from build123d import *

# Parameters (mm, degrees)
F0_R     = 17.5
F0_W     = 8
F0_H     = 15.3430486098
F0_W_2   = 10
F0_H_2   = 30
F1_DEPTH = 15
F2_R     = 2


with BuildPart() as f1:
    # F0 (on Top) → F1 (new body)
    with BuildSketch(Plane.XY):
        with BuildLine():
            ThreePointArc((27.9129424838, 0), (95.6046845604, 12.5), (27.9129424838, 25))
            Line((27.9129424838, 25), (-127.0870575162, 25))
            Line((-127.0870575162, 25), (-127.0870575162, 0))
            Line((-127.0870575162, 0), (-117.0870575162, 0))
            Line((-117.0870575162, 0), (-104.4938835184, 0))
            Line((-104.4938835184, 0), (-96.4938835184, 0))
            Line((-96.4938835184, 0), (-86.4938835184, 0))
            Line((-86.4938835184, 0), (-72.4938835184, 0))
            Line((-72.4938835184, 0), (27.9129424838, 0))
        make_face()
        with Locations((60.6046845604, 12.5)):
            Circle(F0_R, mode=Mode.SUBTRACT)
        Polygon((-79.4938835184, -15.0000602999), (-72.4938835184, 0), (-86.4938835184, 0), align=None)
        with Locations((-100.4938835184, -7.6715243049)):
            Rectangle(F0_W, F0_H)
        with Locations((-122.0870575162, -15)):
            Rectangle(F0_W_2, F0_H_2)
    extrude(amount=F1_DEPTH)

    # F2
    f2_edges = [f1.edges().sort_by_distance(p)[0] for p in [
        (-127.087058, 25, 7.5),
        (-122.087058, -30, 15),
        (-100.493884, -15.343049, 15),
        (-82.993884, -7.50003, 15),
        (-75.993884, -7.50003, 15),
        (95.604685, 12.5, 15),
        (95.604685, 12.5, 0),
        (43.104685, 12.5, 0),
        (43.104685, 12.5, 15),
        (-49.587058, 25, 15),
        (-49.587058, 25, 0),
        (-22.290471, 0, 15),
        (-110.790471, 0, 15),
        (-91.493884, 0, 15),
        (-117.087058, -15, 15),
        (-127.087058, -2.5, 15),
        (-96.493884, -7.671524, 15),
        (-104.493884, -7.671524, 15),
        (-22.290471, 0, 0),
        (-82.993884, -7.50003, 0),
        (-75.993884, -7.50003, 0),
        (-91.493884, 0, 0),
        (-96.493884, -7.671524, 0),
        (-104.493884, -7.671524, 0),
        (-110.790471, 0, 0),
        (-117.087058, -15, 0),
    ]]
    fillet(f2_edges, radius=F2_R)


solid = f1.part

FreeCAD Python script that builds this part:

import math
import FreeCAD as App
import Part
import Sketcher

V = App.Vector


def edges_at(feature, points):
    """Names of the edges that pass closest to the given points."""
    edges = feature.Shape.Edges
    near = lambda p: min(range(len(edges)), key=lambda i: edges[i].distToShape(Part.Vertex(*p))[0])
    return sorted({f"Edge{near(p) + 1}" for p in points})

doc = App.newDocument("Part")
body = doc.addObject("PartDesign::Body", "Body")

# Sketch on XY plane
sketch1 = doc.addObject("Sketcher::SketchObject", "Sketch")
body.addObject(sketch1)
sketch1.AttachmentSupport = (doc.XY_Plane, [""])
sketch1.MapMode = "FlatFace"
sketch1.addGeometry(Part.ArcOfCircle(Part.Circle(V(61, 12, 0), V(0, 0, 1), 35), math.radians(-159), math.radians(159)), False)
sketch1.addGeometry(Part.LineSegment(V(28, 25, 0), V(-127, 25, 0)), False)
sketch1.addGeometry(Part.LineSegment(V(-127, 25, 0), V(-127, -30, 0)), False)
sketch1.addGeometry(Part.LineSegment(V(-127, -30, 0), V(-117, -30, 0)), False)
sketch1.addGeometry(Part.LineSegment(V(-117, -30, 0), V(-117, 0, 0)), False)
sketch1.addGeometry(Part.LineSegment(V(-117, 0, 0), V(-104, 0, 0)), False)
sketch1.addGeometry(Part.LineSegment(V(-104, 0, 0), V(-104, -15, 0)), False)
sketch1.addGeometry(Part.LineSegment(V(-104, -15, 0), V(-96, -15, 0)), False)
sketch1.addGeometry(Part.LineSegment(V(-96, -15, 0), V(-96, 0, 0)), False)
sketch1.addGeometry(Part.LineSegment(V(-96, 0, 0), V(-86, 0, 0)), False)
sketch1.addGeometry(Part.LineSegment(V(-86, 0, 0), V(-79, -15, 0)), False)
sketch1.addGeometry(Part.LineSegment(V(-79, -15, 0), V(-72, 0, 0)), False)
sketch1.addGeometry(Part.LineSegment(V(-72, 0, 0), V(28, 0, 0)), False)
sketch1.addGeometry(Part.Circle(V(61, 12, 0), V(0, 0, 1), 18), False)
sketch1.addConstraint(Sketcher.Constraint("Coincident", 0, 2, 1, 1))
sketch1.addConstraint(Sketcher.Constraint("Coincident", 1, 2, 2, 1))
sketch1.addConstraint(Sketcher.Constraint("Coincident", 2, 2, 3, 1))
sketch1.addConstraint(Sketcher.Constraint("Coincident", 3, 2, 4, 1))
sketch1.addConstraint(Sketcher.Constraint("Coincident", 4, 2, 5, 1))
sketch1.addConstraint(Sketcher.Constraint("Coincident", 5, 2, 6, 1))
sketch1.addConstraint(Sketcher.Constraint("Coincident", 6, 2, 7, 1))
sketch1.addConstraint(Sketcher.Constraint("Coincident", 7, 2, 8, 1))
sketch1.addConstraint(Sketcher.Constraint("Coincident", 8, 2, 9, 1))
sketch1.addConstraint(Sketcher.Constraint("Coincident", 9, 2, 10, 1))
sketch1.addConstraint(Sketcher.Constraint("Coincident", 10, 2, 11, 1))
sketch1.addConstraint(Sketcher.Constraint("Coincident", 11, 2, 12, 1))
sketch1.addConstraint(Sketcher.Constraint("Coincident", 12, 2, 0, 1))
sketch1.addConstraint(Sketcher.Constraint("Horizontal", 1))
sketch1.addConstraint(Sketcher.Constraint("Vertical", 2))
sketch1.addConstraint(Sketcher.Constraint("Horizontal", 3))
sketch1.addConstraint(Sketcher.Constraint("Vertical", 4))
sketch1.addConstraint(Sketcher.Constraint("Horizontal", 5))
sketch1.addConstraint(Sketcher.Constraint("Vertical", 6))
sketch1.addConstraint(Sketcher.Constraint("Horizontal", 7))
sketch1.addConstraint(Sketcher.Constraint("Vertical", 8))
sketch1.addConstraint(Sketcher.Constraint("Horizontal", 9))
sketch1.addConstraint(Sketcher.Constraint("Horizontal", 12))
sketch1.addConstraint(Sketcher.Constraint("Coincident", 13, 3, 0, 3))
sketch1.addConstraint(Sketcher.Constraint("PointOnObject", 4, 2, -1))
sketch1.addConstraint(Sketcher.Constraint("PointOnObject", 8, 2, -1))
sketch1.addConstraint(Sketcher.Constraint("PointOnObject", 11, 2, -1))
sketch1.addConstraint(Sketcher.Constraint("Vertical", 0, 2, 12, 2))
sketch1.addConstraint(Sketcher.Constraint("Equal", 3, 9))
sketch1.addConstraint(Sketcher.Constraint("Equal", 10, 11))
sketch1.addConstraint(Sketcher.Constraint("Diameter", 13, 35.0))
sketch1.addConstraint(Sketcher.Constraint("Radius", 0, 35.0))
sketch1.addConstraint(Sketcher.Constraint("DistanceX", 1, 2, 1, 1, 155.0))
sketch1.addConstraint(Sketcher.Constraint("DistanceX", 3, 1, 3, 2, 10.0))
sketch1.addConstraint(Sketcher.Constraint("DistanceX", 7, 1, 7, 2, 8.0))
sketch1.addConstraint(Sketcher.Constraint("DistanceY", 2, 2, 2, 1, 55.0))
sketch1.addConstraint(Sketcher.Constraint("DistanceY", 4, 1, 4, 2, 30.0))
sketch1.addConstraint(Sketcher.Constraint("DistanceX", 9, 2, 10, 2, 7.0))
sketch1.addConstraint(Sketcher.Constraint("Distance", 10, 16.553))
sketch1.addConstraint(Sketcher.Constraint("DistanceY", 6, 2, 6, 1, 15.343049))
sketch1.addConstraint(Sketcher.Constraint("DistanceX", 5, 1, 5, 2, 12.593174))
sketch1.addConstraint(Sketcher.Constraint("DistanceX", -1, 1, 0, 3, 60.604685))
pad1 = doc.addObject("PartDesign::Pad", "Pad")
body.addObject(pad1)
pad1.Profile = sketch1
pad1.Length = 15
doc.recompute()

fillet = doc.addObject("PartDesign::Fillet", "Fillet")
body.addObject(fillet)
fillet.Base = (pad1, edges_at(pad1, [
    (-127.087, 25, 7.5),
    (-122.087, -30, 15),
    (-100.494, -15.343, 15),
    (-82.994, -7.5, 15),
    (-75.994, -7.5, 15),
    (95.605, 12.5, 15),
    (95.605, 12.5, 0),
    (43.105, 12.5, 0),
    (43.105, 12.5, 15),
    (-49.587, 25, 15),
    (-49.587, 25, 0),
    (-22.29, 0, 15),
    (-110.79, 0, 15),
    (-91.494, 0, 15),
    (-117.087, -15, 15),
    (-127.087, -2.5, 15),
    (-96.494, -7.672, 15),
    (-104.494, -7.672, 15),
    (-22.29, 0, 0),
    (-82.994, -7.5, 0),
    (-75.994, -7.5, 0),
    (-91.494, 0, 0),
    (-96.494, -7.672, 0),
    (-104.494, -7.672, 0),
    (-110.79, 0, 0),
    (-117.087, -15, 0),
]))
fillet.Radius = 2

doc.recompute()
